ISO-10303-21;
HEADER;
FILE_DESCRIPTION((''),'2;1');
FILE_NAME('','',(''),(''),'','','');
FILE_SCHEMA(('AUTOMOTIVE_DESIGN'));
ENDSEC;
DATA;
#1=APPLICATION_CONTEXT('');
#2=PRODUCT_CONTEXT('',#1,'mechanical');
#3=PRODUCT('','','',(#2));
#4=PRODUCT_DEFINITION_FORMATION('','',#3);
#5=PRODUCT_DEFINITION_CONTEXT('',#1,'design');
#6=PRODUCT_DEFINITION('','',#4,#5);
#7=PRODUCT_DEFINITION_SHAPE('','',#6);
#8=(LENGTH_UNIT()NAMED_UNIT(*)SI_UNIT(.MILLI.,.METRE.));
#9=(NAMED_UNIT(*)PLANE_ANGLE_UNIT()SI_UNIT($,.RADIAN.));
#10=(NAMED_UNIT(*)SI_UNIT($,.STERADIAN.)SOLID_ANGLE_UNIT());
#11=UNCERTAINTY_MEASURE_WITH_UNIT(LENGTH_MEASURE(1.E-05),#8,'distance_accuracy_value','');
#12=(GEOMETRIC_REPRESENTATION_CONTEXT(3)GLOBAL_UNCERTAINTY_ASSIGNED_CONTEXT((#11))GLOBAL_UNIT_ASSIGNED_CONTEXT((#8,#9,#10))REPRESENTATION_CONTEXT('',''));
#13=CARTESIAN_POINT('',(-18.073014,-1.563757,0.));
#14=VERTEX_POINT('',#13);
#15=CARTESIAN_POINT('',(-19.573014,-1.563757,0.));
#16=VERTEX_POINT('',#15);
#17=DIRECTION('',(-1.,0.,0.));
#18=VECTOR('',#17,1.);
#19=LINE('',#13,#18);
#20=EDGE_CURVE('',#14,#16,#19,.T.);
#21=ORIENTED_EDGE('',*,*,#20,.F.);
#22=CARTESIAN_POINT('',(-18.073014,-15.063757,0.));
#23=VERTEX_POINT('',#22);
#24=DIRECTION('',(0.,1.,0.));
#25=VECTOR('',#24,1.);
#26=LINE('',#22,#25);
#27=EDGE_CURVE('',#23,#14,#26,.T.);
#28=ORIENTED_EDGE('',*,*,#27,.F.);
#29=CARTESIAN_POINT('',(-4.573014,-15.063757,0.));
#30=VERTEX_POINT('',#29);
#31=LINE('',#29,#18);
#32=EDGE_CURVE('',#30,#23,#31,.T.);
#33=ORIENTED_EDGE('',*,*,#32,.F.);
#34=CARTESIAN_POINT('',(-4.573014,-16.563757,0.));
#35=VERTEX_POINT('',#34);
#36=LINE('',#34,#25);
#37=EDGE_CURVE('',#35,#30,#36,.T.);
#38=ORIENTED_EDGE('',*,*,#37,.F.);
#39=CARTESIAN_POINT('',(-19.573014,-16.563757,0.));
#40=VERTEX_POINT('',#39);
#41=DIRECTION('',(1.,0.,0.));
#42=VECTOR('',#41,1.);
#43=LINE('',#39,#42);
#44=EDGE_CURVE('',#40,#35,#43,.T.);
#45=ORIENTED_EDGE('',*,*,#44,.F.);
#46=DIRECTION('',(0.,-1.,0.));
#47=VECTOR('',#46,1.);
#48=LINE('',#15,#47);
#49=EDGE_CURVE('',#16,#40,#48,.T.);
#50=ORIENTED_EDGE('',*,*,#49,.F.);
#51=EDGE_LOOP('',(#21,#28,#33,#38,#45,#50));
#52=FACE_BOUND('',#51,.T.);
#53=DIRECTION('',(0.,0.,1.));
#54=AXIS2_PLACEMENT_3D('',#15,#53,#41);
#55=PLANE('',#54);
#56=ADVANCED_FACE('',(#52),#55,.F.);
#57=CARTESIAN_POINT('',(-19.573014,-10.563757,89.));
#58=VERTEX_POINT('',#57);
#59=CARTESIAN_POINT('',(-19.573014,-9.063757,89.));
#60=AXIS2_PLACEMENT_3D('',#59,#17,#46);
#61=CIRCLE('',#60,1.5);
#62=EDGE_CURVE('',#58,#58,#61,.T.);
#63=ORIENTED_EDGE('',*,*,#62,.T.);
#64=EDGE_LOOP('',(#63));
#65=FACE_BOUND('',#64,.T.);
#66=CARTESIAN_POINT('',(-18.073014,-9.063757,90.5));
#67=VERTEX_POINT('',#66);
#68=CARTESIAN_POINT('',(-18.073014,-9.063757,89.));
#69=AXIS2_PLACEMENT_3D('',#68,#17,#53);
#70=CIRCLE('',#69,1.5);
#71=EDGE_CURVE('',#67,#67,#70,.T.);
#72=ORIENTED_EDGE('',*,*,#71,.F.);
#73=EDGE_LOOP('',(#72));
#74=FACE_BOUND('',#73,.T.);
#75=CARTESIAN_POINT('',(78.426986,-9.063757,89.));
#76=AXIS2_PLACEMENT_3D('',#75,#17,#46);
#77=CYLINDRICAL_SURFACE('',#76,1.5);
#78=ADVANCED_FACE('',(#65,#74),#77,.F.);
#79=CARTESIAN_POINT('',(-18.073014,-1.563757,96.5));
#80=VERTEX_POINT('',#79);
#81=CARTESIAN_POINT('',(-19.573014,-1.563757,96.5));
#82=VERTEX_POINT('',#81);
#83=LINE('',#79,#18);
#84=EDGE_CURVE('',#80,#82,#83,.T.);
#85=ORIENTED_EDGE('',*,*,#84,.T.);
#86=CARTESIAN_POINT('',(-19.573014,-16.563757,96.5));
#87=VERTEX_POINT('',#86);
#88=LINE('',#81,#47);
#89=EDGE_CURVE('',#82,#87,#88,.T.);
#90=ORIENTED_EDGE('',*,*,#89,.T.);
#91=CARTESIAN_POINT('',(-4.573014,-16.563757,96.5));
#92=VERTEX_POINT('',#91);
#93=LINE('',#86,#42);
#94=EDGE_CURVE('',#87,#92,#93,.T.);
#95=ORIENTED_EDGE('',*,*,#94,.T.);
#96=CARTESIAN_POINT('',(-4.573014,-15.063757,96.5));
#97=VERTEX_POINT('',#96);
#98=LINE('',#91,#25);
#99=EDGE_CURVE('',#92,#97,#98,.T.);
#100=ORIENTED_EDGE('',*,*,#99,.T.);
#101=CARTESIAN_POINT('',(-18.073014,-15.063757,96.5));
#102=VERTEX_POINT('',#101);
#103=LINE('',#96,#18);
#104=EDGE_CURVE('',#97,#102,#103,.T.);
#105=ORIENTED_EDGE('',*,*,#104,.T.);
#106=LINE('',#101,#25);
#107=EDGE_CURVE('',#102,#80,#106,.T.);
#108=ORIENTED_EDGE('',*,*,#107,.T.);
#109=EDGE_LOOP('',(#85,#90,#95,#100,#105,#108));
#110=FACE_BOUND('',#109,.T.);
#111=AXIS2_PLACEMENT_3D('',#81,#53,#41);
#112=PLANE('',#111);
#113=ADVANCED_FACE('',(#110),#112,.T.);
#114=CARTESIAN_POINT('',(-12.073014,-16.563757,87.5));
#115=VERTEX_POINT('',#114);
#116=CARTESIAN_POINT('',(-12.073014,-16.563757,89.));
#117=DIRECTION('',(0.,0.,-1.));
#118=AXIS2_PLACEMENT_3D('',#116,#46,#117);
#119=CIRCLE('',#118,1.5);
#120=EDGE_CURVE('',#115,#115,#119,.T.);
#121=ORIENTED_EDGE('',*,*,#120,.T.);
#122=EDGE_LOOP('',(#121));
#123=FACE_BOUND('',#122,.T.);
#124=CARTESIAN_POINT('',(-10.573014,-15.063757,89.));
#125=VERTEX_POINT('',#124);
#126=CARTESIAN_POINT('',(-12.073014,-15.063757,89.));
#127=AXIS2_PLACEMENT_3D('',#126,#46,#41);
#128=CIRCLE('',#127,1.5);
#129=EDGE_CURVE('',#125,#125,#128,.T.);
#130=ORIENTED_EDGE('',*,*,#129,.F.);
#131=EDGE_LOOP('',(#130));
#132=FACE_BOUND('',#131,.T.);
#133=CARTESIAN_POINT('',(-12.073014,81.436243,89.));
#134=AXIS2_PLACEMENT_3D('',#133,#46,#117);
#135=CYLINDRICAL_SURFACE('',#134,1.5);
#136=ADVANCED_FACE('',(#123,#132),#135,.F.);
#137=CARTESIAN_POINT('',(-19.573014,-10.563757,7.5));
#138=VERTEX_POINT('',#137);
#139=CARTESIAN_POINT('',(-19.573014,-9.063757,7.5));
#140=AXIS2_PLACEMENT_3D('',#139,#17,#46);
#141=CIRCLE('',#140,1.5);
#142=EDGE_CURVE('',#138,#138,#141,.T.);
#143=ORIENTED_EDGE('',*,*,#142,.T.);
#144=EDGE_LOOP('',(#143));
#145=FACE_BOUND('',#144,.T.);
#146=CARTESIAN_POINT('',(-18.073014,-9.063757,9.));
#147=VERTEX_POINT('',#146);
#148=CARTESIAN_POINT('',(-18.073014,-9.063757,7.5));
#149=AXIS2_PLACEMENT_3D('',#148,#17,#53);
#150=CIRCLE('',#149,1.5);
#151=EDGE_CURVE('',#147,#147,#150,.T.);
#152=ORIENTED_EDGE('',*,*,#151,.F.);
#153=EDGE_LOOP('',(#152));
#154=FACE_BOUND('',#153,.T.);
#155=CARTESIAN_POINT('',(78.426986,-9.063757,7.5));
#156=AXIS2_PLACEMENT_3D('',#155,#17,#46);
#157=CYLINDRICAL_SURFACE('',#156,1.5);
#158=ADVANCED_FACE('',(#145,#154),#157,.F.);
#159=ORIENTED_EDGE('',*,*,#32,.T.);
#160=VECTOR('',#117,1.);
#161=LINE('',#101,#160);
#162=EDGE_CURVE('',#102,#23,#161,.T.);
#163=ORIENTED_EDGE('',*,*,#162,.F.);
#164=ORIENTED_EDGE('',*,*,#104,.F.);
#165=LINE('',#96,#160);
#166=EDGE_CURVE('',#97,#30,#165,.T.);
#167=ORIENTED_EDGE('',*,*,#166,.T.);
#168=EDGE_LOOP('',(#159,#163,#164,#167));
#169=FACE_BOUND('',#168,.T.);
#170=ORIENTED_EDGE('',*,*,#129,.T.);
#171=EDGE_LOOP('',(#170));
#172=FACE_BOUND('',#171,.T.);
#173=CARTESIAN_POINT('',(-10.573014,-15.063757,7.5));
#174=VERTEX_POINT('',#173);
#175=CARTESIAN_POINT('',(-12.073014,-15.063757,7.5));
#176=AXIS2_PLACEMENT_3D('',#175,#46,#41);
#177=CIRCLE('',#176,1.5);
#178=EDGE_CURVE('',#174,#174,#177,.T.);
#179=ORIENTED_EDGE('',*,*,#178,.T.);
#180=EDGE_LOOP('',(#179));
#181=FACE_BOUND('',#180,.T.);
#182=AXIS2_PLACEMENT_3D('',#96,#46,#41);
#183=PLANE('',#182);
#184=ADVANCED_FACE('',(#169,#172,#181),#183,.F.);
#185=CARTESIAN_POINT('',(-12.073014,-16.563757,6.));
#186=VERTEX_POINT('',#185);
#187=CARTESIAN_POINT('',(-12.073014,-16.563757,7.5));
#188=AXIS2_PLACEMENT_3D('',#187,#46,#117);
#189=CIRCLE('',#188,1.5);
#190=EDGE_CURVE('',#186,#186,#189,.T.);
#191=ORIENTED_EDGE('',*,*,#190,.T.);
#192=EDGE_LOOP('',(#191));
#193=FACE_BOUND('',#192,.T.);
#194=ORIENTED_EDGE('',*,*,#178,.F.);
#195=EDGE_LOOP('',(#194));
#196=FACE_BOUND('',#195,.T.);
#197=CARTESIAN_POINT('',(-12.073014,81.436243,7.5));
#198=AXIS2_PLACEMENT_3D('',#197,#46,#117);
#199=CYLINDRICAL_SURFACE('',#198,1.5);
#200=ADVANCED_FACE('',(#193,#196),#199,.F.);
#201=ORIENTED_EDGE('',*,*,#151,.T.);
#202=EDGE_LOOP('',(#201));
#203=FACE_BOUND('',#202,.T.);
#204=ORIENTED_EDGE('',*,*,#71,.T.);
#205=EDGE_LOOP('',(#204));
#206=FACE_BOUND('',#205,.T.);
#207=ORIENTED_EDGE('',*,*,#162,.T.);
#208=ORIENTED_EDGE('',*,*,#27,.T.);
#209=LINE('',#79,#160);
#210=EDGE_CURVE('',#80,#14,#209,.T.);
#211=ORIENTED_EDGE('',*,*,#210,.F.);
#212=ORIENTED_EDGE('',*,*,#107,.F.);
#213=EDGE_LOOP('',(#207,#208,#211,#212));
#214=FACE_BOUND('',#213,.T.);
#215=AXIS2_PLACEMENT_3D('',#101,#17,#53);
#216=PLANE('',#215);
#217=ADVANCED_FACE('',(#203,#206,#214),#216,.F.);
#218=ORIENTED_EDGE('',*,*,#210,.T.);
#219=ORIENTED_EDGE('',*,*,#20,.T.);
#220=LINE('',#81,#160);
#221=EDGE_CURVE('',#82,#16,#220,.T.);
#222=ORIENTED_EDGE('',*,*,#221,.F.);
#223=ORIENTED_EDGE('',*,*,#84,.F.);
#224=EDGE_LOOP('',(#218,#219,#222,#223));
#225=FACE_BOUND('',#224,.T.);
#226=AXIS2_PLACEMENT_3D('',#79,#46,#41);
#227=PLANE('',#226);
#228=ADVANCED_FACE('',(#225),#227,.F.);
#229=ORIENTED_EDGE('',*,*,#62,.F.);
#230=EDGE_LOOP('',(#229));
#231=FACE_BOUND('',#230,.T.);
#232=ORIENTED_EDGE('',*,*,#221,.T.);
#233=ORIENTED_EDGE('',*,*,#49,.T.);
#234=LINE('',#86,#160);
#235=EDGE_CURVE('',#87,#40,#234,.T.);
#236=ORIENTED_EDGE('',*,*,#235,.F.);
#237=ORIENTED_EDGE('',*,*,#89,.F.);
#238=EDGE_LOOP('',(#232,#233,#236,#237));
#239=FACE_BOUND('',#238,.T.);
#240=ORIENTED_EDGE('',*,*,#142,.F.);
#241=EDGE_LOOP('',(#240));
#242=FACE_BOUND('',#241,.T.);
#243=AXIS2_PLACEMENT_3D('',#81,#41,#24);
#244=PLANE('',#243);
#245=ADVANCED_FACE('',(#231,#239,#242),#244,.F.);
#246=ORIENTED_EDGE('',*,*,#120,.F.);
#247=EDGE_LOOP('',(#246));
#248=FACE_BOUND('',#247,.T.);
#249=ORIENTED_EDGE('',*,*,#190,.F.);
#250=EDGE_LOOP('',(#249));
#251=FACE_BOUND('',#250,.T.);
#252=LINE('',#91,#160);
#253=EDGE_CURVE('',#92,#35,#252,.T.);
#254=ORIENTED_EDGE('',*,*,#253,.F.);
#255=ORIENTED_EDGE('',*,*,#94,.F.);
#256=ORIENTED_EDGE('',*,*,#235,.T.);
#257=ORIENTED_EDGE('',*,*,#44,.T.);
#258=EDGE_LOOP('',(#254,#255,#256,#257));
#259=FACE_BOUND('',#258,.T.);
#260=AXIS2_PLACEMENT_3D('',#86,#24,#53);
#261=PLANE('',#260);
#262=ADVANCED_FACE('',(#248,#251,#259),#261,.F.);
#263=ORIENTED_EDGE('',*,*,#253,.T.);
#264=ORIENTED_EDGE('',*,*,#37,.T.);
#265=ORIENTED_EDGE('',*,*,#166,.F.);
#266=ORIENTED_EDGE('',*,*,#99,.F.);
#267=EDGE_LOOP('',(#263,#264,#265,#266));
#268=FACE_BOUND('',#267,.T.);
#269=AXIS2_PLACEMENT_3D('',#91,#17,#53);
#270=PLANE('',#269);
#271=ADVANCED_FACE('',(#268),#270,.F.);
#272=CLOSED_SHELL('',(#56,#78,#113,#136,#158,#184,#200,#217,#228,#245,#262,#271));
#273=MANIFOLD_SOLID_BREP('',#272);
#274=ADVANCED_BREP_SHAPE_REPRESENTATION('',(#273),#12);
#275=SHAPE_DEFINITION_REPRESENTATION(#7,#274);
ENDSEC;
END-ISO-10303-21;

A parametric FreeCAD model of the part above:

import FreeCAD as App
import Part
import Sketcher
Q = App.Units.Quantity


def add_polygon(sketch, points):
    """Adds a closed chain of lines whose ends are joined by coincident constraints."""
    first, n = sketch.GeometryCount, len(points)
    for a, b in zip(points, points[1:] + points[:1]):
        sketch.addGeometry(Part.LineSegment(App.Vector(*a, 0), App.Vector(*b, 0)), False)
    for i in range(n):
        sketch.addConstraint(Sketcher.Constraint("Coincident", first + i, 2, first + (i + 1) % n, 1))

doc = App.newDocument("Part")
params = doc.addObject("Spreadsheet::Sheet", "Params")
for row, (alias, value) in enumerate([
    ("sketch1_width", "15 mm"),
    ("sketch1_width2", "13.5 mm"),
    ("pad1_length", "96.5 mm"),
    ("sketch2_diameter", "3 mm"),
    ("pocket1_length", "98 mm"),
    ("sketch3_diameter", "3 mm"),
    ("pocket2_length", "98 mm"),
], start=1):
    params.set(f"A{row}", alias)
    params.set(f"B{row}", "=" + value)
    params.setAlias(f"B{row}", alias)

body = doc.addObject("PartDesign::Body", "Body")

sketch1 = doc.addObject("Sketcher::SketchObject", "Sketch")
body.addObject(sketch1)
sketch1.AttachmentSupport = (doc.XY_Plane, [""])
sketch1.MapMode = "FlatFace"
add_polygon(sketch1, [(-19.6, -1.6), (-19.6, -16.6), (-4.6, -16.6), (-4.6, -15.1), (-18.1, -15.1), (-18.1, -1.6)])
sketch1.addConstraint(Sketcher.Constraint("Vertical", 0))
sketch1.addConstraint(Sketcher.Constraint("Horizontal", 1))
sketch1.addConstraint(Sketcher.Constraint("Vertical", 2))
sketch1.addConstraint(Sketcher.Constraint("Horizontal", 3))
sketch1.addConstraint(Sketcher.Constraint("Vertical", 4))
sketch1.addConstraint(Sketcher.Constraint("Horizontal", 5))
sketch1.addConstraint(Sketcher.Constraint("Equal", 1, 0))
sketch1.addConstraint(Sketcher.Constraint("Equal", 5, 2))
sketch1.addConstraint(Sketcher.Constraint("DistanceX", 1, 1, 1, 2, Q("15 mm")))
sketch1.addConstraint(Sketcher.Constraint("DistanceX", 3, 2, 3, 1, Q("13.5 mm")))
sketch1.addConstraint(Sketcher.Constraint("DistanceX", 0, 2, -1, 1, Q("19.573014 mm")))
sketch1.addConstraint(Sketcher.Constraint("DistanceY", 0, 2, -1, 1, Q("16.563757 mm")))
sketch1.setExpression("Constraints[14]", "Params.sketch1_width")
sketch1.setExpression("Constraints[15]", "Params.sketch1_width2")
pad1 = doc.addObject("PartDesign::Pad", "Pad")
body.addObject(pad1)
pad1.Profile = sketch1
pad1.setExpression("Length", "Params.pad1_length")

sketch2 = doc.addObject("Sketcher::SketchObject", "Sketch001")
body.addObject(sketch2)
sketch2.AttachmentSupport = (doc.XZ_Plane, [""])
sketch2.MapMode = "FlatFace"
sketch2.AttachmentOffset = App.Placement(App.Vector(0, 0, 16.563757), App.Rotation())
sketch2.addGeometry(Part.Circle(App.Vector(-12.1, 89, 0), App.Vector(0, 0, 1), 1.5), False)
sketch2.addGeometry(Part.Circle(App.Vector(-12.1, 7.5, 0), App.Vector(0, 0, 1), 1.5), False)
sketch2.addConstraint(Sketcher.Constraint("Equal", 0, 1))
sketch2.addConstraint(Sketcher.Constraint("Vertical", 0, 3, 1, 3))
sketch2.addConstraint(Sketcher.Constraint("Diameter", 0, Q("3 mm")))
sketch2.addConstraint(Sketcher.Constraint("DistanceY", -1, 1, 0, 3, Q("89 mm")))
sketch2.addConstraint(Sketcher.Constraint("DistanceY", -1, 1, 1, 3, Q("7.5 mm")))
sketch2.addConstraint(Sketcher.Constraint("DistanceX", 0, 3, -1, 1, Q("12.073014 mm")))
sketch2.setExpression("Constraints[2]", "Params.sketch2_diameter")
pocket1 = doc.addObject("PartDesign::Pocket", "Pocket")
body.addObject(pocket1)
pocket1.Profile = sketch2
pocket1.setExpression("Length", "Params.pocket1_length")

sketch3 = doc.addObject("Sketcher::SketchObject", "Sketch002")
body.addObject(sketch3)
sketch3.AttachmentSupport = (doc.YZ_Plane, [""])
sketch3.MapMode = "FlatFace"
sketch3.AttachmentOffset = App.Placement(App.Vector(0, 0, -19.573014), App.Rotation())
sketch3.addGeometry(Part.Circle(App.Vector(-9.1, 89, 0), App.Vector(0, 0, 1), 1.5), False)
sketch3.addGeometry(Part.Circle(App.Vector(-9.1, 7.5, 0), App.Vector(0, 0, 1), 1.5), False)
sketch3.addConstraint(Sketcher.Constraint("Equal", 0, 1))
sketch3.addConstraint(Sketcher.Constraint("Vertical", 0, 3, 1, 3))
sketch3.addConstraint(Sketcher.Constraint("Diameter", 0, Q("3 mm")))
sketch3.addConstraint(Sketcher.Constraint("DistanceY", -1, 1, 0, 3, Q("89 mm")))
sketch3.addConstraint(Sketcher.Constraint("DistanceY", -1, 1, 1, 3, Q("7.5 mm")))
sketch3.addConstraint(Sketcher.Constraint("DistanceX", 0, 3, -1, 1, Q("9.063757 mm")))
sketch3.setExpression("Constraints[2]", "Params.sketch3_diameter")
pocket2 = doc.addObject("PartDesign::Pocket", "Pocket001")
body.addObject(pocket2)
pocket2.Profile = sketch3
pocket2.setExpression("Length", "Params.pocket2_length")
pocket2.Reversed = True

doc.recompute()
